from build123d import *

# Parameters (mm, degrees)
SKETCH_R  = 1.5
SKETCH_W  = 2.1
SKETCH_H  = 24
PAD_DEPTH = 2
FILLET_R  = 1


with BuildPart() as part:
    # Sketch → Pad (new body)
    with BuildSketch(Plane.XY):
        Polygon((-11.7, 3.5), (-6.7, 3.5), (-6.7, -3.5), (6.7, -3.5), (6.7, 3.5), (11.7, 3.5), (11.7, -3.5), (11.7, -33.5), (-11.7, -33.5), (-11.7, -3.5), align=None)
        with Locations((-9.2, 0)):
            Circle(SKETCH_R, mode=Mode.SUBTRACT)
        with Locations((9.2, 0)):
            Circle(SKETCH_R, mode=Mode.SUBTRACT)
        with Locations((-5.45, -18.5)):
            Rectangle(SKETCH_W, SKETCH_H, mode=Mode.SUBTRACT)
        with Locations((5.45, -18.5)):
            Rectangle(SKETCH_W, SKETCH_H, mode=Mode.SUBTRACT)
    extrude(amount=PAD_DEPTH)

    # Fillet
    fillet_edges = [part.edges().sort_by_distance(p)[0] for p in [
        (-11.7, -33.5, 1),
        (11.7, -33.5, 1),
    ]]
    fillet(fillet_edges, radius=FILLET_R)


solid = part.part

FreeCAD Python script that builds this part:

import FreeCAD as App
import Part
import Sketcher
Q = App.Units.Quantity


def edges_at(feature, points):
    """Names of the edges that pass closest to the given points."""
    edges = feature.Shape.Edges
    near = lambda p: min(range(len(edges)), key=lambda i: edges[i].distToShape(Part.Vertex(*p))[0])
    return sorted({f"Edge{near(p) + 1}" for p in points})

doc = App.newDocument("Part")
body = doc.addObject("PartDesign::Body", "Body")

sketch1 = doc.addObject("Sketcher::SketchObject", "Sketch")
body.addObject(sketch1)
sketch1.AttachmentSupport = (doc.XY_Plane, [""])
sketch1.MapMode = "FlatFace"
sketch1.addGeometry([
    Part.LineSegment(App.Vector(-6.7, 3.5, 0), App.Vector(-11.7, 3.5, 0)),
    Part.LineSegment(App.Vector(-11.7, 3.5, 0), App.Vector(-11.7, -33.5, 0)),
    Part.LineSegment(App.Vector(-11.7, -33.5, 0), App.Vector(11.7, -33.5, 0)),
    Part.LineSegment(App.Vector(11.7, -33.5, 0), App.Vector(11.7, 3.5, 0)),
    Part.LineSegment(App.Vector(11.7, 3.5, 0), App.Vector(6.7, 3.5, 0)),
    Part.LineSegment(App.Vector(6.7, 3.5, 0), App.Vector(6.7, -3.5, 0)),
    Part.LineSegment(App.Vector(6.7, -3.5, 0), App.Vector(-6.7, -3.5, 0)),
    Part.LineSegment(App.Vector(-6.7, -3.5, 0), App.Vector(-6.7, 3.5, 0)),
    Part.LineSegment(App.Vector(4.4, -30.5, 0), App.Vector(4.4, -6.5, 0)),
    Part.LineSegment(App.Vector(4.4, -6.5, 0), App.Vector(6.5, -6.5, 0)),
    Part.LineSegment(App.Vector(6.5, -6.5, 0), App.Vector(6.5, -30.5, 0)),
    Part.LineSegment(App.Vector(6.5, -30.5, 0), App.Vector(4.4, -30.5, 0)),
    Part.LineSegment(App.Vector(-6.5, -30.5, 0), App.Vector(-6.5, -6.5, 0)),
    Part.LineSegment(App.Vector(-6.5, -6.5, 0), App.Vector(-4.4, -6.5, 0)),
    Part.LineSegment(App.Vector(-4.4, -6.5, 0), App.Vector(-4.4, -30.5, 0)),
    Part.LineSegment(App.Vector(-4.4, -30.5, 0), App.Vector(-6.5, -30.5, 0)),
    Part.Circle(App.Vector(9.2, 0, 0), App.Vector(0, 0, 1), 1.5),
    Part.Circle(App.Vector(-9.2, 0, 0), App.Vector(0, 0, 1), 1.5),
], False)
sketch1.addConstraint([
    Sketcher.Constraint("Coincident", 0, 2, 1, 1),
    Sketcher.Constraint("Coincident", 1, 2, 2, 1),
    Sketcher.Constraint("Coincident", 2, 2, 3, 1),
    Sketcher.Constraint("Coincident", 3, 2, 4, 1),
    Sketcher.Constraint("Coincident", 4, 2, 5, 1),
    Sketcher.Constraint("Coincident", 5, 2, 6, 1),
    Sketcher.Constraint("Coincident", 6, 2, 7, 1),
    Sketcher.Constraint("Coincident", 7, 2, 0, 1),
    Sketcher.Constraint("Coincident", 8, 2, 9, 1),
    Sketcher.Constraint("Coincident", 9, 2, 10, 1),
    Sketcher.Constraint("Coincident", 10, 2, 11, 1),
    Sketcher.Constraint("Coincident", 11, 2, 8, 1),
    Sketcher.Constraint("Coincident", 12, 2, 13, 1),
    Sketcher.Constraint("Coincident", 13, 2, 14, 1),
    Sketcher.Constraint("Coincident", 14, 2, 15, 1),
    Sketcher.Constraint("Coincident", 15, 2, 12, 1),
    Sketcher.Constraint("Horizontal", 0),
    Sketcher.Constraint("Vertical", 1),
    Sketcher.Constraint("Horizontal", 2),
    Sketcher.Constraint("Vertical", 3),
    Sketcher.Constraint("Horizontal", 4),
    Sketcher.Constraint("Vertical", 5),
    Sketcher.Constraint("Horizontal", 6),
    Sketcher.Constraint("Vertical", 7),
    Sketcher.Constraint("Vertical", 8),
    Sketcher.Constraint("Horizontal", 9),
    Sketcher.Constraint("Vertical", 10),
    Sketcher.Constraint("Horizontal", 11),
    Sketcher.Constraint("Vertical", 12),
    Sketcher.Constraint("Horizontal", 13),
    Sketcher.Constraint("Vertical", 14),
    Sketcher.Constraint("Horizontal", 15),
    Sketcher.Constraint("Equal", 16, 17),
    Sketcher.Constraint("Symmetric", 16, 3, 17, 3, -1, 1),
    Sketcher.Constraint("Symmetric", 4, 2, 6, 2, -1, 1),
    Sketcher.Constraint("Symmetric", 0, 2, 3, 2, -2),
    Sketcher.Constraint("Symmetric", 9, 2, 12, 2, -2),
    Sketcher.Constraint("Symmetric", 11, 2, 14, 2, -2),
    Sketcher.Constraint("PointOnObject", 16, 3, -1),
    Sketcher.Constraint("Diameter", 16, Q("3 mm")),
    Sketcher.Constraint("DistanceX", 0, 2, 0, 1, Q("5 mm")),
    Sketcher.Constraint("DistanceY", 1, 2, 1, 1, Q("37 mm")),
    Sketcher.Constraint("DistanceY", 5, 2, 5, 1, Q("7 mm")),
    Sketcher.Constraint("DistanceY", 8, 1, 8, 2, Q("24 mm")),
    Sketcher.Constraint("DistanceX", 2, 1, 2, 2, Q("23.4 mm")),
    Sketcher.Constraint("DistanceX", 9, 1, 9, 2, Q("2.1 mm")),
    Sketcher.Constraint("DistanceY", 8, 2, 5, 2, Q("3 mm")),
    Sketcher.Constraint("DistanceX", 15, 2, 10, 2, Q("13 mm")),
    Sketcher.Constraint("DistanceX", -1, 1, 16, 3, Q("9.2 mm")),
])
pad1 = doc.addObject("PartDesign::Pad", "Pad")
body.addObject(pad1)
pad1.Profile = sketch1
pad1.Length = 2
doc.recompute()

fillet = doc.addObject("PartDesign::Fillet", "Fillet")
body.addObject(fillet)
fillet.Base = (pad1, edges_at(pad1, [(-11.7, -33.5, 1), (11.7, -33.5, 1)]))
fillet.Radius = 1

doc.recompute()
